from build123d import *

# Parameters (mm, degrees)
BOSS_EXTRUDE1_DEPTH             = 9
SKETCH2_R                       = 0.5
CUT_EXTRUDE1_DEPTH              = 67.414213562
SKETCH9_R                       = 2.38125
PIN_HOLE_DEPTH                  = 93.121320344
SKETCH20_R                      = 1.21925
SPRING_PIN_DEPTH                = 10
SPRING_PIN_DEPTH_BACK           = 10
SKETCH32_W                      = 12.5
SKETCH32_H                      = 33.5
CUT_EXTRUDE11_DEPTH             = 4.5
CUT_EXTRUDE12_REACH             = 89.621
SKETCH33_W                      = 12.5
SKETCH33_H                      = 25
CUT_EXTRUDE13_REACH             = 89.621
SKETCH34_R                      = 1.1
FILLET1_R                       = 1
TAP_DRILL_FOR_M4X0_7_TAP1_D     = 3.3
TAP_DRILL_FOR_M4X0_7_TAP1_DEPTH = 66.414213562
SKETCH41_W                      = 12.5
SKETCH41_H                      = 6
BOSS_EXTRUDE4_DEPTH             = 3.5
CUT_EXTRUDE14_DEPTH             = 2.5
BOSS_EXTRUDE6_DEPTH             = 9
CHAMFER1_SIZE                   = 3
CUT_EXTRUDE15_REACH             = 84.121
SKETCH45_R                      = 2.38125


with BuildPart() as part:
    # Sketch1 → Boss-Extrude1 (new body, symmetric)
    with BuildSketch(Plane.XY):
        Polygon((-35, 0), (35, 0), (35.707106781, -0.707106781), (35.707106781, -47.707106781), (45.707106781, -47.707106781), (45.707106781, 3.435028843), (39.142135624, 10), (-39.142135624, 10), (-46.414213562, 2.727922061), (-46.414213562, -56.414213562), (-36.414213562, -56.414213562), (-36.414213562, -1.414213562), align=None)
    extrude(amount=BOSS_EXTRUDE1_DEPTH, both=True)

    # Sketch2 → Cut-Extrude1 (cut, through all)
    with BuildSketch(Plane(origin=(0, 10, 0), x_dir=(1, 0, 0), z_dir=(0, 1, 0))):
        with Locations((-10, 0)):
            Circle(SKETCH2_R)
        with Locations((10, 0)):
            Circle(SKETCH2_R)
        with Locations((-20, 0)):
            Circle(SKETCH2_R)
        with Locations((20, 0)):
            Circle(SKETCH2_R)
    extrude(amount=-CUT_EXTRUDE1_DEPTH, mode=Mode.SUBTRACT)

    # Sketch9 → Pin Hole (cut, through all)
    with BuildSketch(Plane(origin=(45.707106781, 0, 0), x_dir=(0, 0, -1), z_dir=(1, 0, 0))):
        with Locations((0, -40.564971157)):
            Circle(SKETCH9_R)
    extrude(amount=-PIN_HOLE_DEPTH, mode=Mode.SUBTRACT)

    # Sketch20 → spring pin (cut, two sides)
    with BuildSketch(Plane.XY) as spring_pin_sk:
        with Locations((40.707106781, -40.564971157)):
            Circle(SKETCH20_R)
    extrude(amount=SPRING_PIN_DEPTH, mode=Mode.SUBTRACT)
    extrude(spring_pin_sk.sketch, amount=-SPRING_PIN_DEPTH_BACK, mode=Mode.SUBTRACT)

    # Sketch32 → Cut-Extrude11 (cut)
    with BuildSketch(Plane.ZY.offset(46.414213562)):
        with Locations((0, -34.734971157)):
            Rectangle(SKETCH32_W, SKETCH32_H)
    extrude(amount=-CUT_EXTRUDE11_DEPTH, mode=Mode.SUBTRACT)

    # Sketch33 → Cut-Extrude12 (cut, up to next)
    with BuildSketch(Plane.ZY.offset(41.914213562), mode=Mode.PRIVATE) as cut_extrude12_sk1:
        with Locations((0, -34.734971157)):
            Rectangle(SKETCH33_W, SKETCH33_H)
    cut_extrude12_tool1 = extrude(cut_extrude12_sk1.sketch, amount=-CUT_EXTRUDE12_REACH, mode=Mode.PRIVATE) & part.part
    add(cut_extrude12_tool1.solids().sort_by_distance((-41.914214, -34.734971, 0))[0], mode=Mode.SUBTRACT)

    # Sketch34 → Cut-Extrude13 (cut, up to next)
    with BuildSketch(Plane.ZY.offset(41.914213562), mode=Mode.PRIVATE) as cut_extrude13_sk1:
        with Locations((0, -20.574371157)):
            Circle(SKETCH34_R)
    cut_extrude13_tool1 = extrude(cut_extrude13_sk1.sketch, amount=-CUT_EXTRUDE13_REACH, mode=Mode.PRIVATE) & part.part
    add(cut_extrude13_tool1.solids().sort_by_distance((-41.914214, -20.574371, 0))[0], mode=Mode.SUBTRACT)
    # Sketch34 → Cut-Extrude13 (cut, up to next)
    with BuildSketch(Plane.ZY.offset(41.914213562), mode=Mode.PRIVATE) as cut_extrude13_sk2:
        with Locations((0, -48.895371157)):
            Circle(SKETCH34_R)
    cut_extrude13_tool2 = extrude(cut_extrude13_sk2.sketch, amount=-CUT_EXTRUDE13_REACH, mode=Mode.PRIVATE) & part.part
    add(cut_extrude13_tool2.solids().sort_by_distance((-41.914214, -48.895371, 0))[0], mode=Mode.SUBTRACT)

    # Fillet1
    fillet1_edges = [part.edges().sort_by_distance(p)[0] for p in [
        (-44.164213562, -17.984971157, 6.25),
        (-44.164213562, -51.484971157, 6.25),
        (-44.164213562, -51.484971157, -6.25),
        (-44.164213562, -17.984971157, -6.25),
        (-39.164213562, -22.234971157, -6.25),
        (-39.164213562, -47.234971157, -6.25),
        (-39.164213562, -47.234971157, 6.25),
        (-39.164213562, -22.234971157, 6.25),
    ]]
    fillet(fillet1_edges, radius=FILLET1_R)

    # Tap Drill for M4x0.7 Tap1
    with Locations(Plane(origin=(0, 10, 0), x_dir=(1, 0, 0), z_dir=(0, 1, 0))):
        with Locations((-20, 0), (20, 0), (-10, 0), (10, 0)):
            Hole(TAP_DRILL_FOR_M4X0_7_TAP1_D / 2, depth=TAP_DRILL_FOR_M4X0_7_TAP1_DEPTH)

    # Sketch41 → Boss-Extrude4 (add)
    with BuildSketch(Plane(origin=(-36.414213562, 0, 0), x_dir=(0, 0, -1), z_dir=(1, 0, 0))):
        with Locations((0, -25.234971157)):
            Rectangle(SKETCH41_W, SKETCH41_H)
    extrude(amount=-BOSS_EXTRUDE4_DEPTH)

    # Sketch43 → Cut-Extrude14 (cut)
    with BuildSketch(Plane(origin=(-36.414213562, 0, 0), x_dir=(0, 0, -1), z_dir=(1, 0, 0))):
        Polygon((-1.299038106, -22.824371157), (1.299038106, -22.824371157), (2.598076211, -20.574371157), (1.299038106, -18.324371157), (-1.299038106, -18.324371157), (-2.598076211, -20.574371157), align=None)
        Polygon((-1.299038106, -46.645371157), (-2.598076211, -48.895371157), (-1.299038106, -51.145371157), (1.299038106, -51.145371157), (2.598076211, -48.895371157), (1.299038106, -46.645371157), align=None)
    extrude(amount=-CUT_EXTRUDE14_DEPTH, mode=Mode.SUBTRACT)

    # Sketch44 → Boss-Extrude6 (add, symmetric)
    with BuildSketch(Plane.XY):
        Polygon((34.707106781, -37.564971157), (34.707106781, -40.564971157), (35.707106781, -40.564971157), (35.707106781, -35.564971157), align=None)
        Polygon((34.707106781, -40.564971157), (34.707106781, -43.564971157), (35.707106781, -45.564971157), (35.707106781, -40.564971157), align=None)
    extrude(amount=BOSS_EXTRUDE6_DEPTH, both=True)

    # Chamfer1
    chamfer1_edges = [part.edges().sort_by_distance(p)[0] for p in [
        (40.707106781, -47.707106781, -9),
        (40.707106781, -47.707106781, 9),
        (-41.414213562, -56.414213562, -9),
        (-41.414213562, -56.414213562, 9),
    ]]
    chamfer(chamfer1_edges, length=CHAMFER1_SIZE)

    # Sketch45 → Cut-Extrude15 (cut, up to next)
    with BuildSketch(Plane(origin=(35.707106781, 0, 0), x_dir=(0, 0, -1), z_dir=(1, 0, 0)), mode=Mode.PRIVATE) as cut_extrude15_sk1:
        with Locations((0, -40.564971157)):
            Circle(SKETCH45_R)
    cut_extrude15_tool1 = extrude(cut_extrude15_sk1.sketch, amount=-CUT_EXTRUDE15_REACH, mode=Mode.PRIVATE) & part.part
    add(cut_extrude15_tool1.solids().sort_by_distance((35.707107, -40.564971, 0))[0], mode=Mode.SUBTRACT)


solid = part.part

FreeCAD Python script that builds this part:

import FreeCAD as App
import Part
import Sketcher
from FreeCAD import Vector
Q = App.Units.Quantity


def edges_at(feature, points):
    """Names of the edges that pass closest to the given points."""
    edges = feature.Shape.Edges
    near = lambda p: min(range(len(edges)), key=lambda i: edges[i].distToShape(Part.Vertex(*p))[0])
    return sorted({f"Edge{near(p) + 1}" for p in points})


def add_polygon(sketch, points):
    """Adds a closed chain of lines whose ends are joined by coincident constraints."""
    first, n = sketch.GeometryCount, len(points)
    for a, b in zip(points, points[1:] + points[:1]):
        sketch.addGeometry(Part.LineSegment(App.Vector(*a, 0), App.Vector(*b, 0)), False)
    for i in range(n):
        sketch.addConstraint(Sketcher.Constraint("Coincident", first + i, 2, first + (i + 1) % n, 1))

doc = App.newDocument("Part")
body = doc.addObject("PartDesign::Body", "Body")

sketch1 = doc.addObject("Sketcher::SketchObject", "Sketch")
body.addObject(sketch1)
sketch1.AttachmentSupport = (doc.XY_Plane, [""])
sketch1.MapMode = "FlatFace"
add_polygon(sketch1, [(-35, 0), (35, 0), (35.707107, -0.707107), (35.707107, -47.707107), (45.707107, -47.707107), (45.707107, 3.435029), (39.142136, 10), (-39.142136, 10), (-46.414214, 2.727922), (-46.414214, -56.414214), (-36.414214, -56.414214), (-36.414214, -1.414214)])
sketch1.addConstraint([
    Sketcher.Constraint("Horizontal", 0),
    Sketcher.Constraint("Vertical", 2),
    Sketcher.Constraint("Horizontal", 3),
    Sketcher.Constraint("Vertical", 4),
    Sketcher.Constraint("Horizontal", 6),
    Sketcher.Constraint("Vertical", 8),
    Sketcher.Constraint("Horizontal", 9),
    Sketcher.Constraint("Vertical", 10),
    Sketcher.Constraint("Symmetric", 0, 2, 11, 2, -1, 1),
    Sketcher.Constraint("Parallel", 1, 5),
    Sketcher.Constraint("Perpendicular", 5, 7),
    Sketcher.Constraint("Parallel", 7, 11),
    Sketcher.Constraint("Equal", 3, 9),
    Sketcher.Constraint("DistanceX", 0, 1, 0, 2, 70.0),
    Sketcher.Constraint("DistanceX", 3, 1, 3, 2, 10.0),
    Sketcher.Constraint("DistanceY", 2, 2, 2, 1, 47.0),
    Sketcher.Constraint("DistanceY", 10, 1, 10, 2, 55.0),
    Sketcher.Constraint("Angle", 1, Q("-45 deg")),
    Sketcher.Constraint("Distance", 1, 1.0),
    Sketcher.Constraint("Distance", 11, 2.0),
    Sketcher.Constraint("DistanceY", -1, 1, 5, 2, 10.0),
    Sketcher.Constraint("DistanceX", 6, 2, 6, 1, 78.284271),
    Sketcher.Constraint("Distance", 5, 9.284271),
])
pad1 = doc.addObject("PartDesign::Pad", "Pad")
body.addObject(pad1)
pad1.Profile = sketch1
pad1.Length = 18
pad1.Midplane = True

sketch2 = doc.addObject("Sketcher::SketchObject", "Sketch001")
body.addObject(sketch2)
sketch2.AttachmentSupport = (doc.XZ_Plane, [""])
sketch2.MapMode = "FlatFace"
sketch2.AttachmentOffset = App.Placement(Vector(0, 0, -10), App.Rotation())
sketch2.addGeometry([
    Part.Circle(Vector(-10, 0, 0), Vector(0, 0, 1), 0.5),
    Part.Circle(Vector(10, 0, 0), Vector(0, 0, 1), 0.5),
    Part.Circle(Vector(-20, 0, 0), Vector(0, 0, 1), 0.5),
    Part.Circle(Vector(20, 0, 0), Vector(0, 0, 1), 0.5),
], False)
sketch2.addConstraint([
    Sketcher.Constraint("Equal", 0, 1),
    Sketcher.Constraint("Equal", 1, 2),
    Sketcher.Constraint("Equal", 2, 3),
    Sketcher.Constraint("Symmetric", 0, 3, 1, 3, -1, 1),
    Sketcher.Constraint("Symmetric", 2, 3, 3, 3, -1, 1),
    Sketcher.Constraint("PointOnObject", 0, 3, -1),
    Sketcher.Constraint("PointOnObject", 2, 3, -1),
    Sketcher.Constraint("Diameter", 0, 1.0),
    Sketcher.Constraint("DistanceX", 0, 3, -1, 1, 10.0),
    Sketcher.Constraint("DistanceX", 2, 3, -1, 1, 20.0),
])
pocket1 = doc.addObject("PartDesign::Pocket", "Pocket")
body.addObject(pocket1)
pocket1.Profile = sketch2
pocket1.Type = "ThroughAll"
pocket1.Reversed = True

sketch3 = doc.addObject("Sketcher::SketchObject", "Sketch002")
body.addObject(sketch3)
sketch3.AttachmentSupport = (doc.YZ_Plane, [""])
sketch3.MapMode = "FlatFace"
sketch3.AttachmentOffset = App.Placement(Vector(0, 0, 45.707107), App.Rotation())
sketch3.addGeometry(Part.Circle(Vector(-40.564971, 0, 0), Vector(0, 0, 1), 2.38125), False)
sketch3.addConstraint([
    Sketcher.Constraint("PointOnObject", 0, 3, -1),
    Sketcher.Constraint("Diameter", 0, 4.7625),
    Sketcher.Constraint("DistanceX", 0, 3, -1, 1, 40.564971),
])
pocket2 = doc.addObject("PartDesign::Pocket", "Pocket001")
body.addObject(pocket2)
pocket2.Profile = sketch3
pocket2.Type = "ThroughAll"

sketch4 = doc.addObject("Sketcher::SketchObject", "Sketch003")
body.addObject(sketch4)
sketch4.AttachmentSupport = (doc.XY_Plane, [""])
sketch4.MapMode = "FlatFace"
sketch4.addGeometry(Part.Circle(Vector(40.707107, -40.564971, 0), Vector(0, 0, 1), 1.21925), False)
sketch4.addConstraint([
    Sketcher.Constraint("Diameter", 0, 2.4385),
    Sketcher.Constraint("DistanceY", 0, 3, -1, 1, 40.564971),
    Sketcher.Constraint("DistanceX", -1, 1, 0, 3, 40.707107),
])
pocket3 = doc.addObject("PartDesign::Pocket", "Pocket002")
body.addObject(pocket3)
pocket3.Profile = sketch4
pocket3.Type = "ThroughAll"
pocket3.Midplane = True

sketch5 = doc.addObject("Sketcher::SketchObject", "Sketch004")
body.addObject(sketch5)
sketch5.AttachmentSupport = (doc.YZ_Plane, [""])
sketch5.MapMode = "FlatFace"
sketch5.AttachmentOffset = App.Placement(Vector(0, 0, -46.414214), App.Rotation())
add_polygon(sketch5, [(-17.984971, -6.25), (-51.484971, -6.25), (-51.484971, 6.25), (-17.984971, 6.25)])
sketch5.addConstraint([
    Sketcher.Constraint("Horizontal", 0),
    Sketcher.Constraint("Vertical", 1),
    Sketcher.Constraint("Horizontal", 2),
    Sketcher.Constraint("Vertical", 3),
    Sketcher.Constraint("DistanceX", 0, 2, 0, 1, 33.5),
    Sketcher.Constraint("DistanceY", 1, 1, 1, 2, 12.5),
    Sketcher.Constraint("DistanceY", 0, 2, -1, 1, 6.25),
    Sketcher.Constraint("DistanceX", 0, 2, -1, 1, 51.484971),
])
pocket4 = doc.addObject("PartDesign::Pocket", "Pocket003")
body.addObject(pocket4)
pocket4.Profile = sketch5
pocket4.Length = 4.5
pocket4.Reversed = True

sketch6 = doc.addObject("Sketcher::SketchObject", "Sketch005")
body.addObject(sketch6)
sketch6.AttachmentSupport = (doc.YZ_Plane, [""])
sketch6.MapMode = "FlatFace"
sketch6.AttachmentOffset = App.Placement(Vector(0, 0, -41.914214), App.Rotation())
add_polygon(sketch6, [(-22.234971, -6.25), (-47.234971, -6.25), (-47.234971, 6.25), (-22.234971, 6.25)])
sketch6.addConstraint([
    Sketcher.Constraint("Horizontal", 0),
    Sketcher.Constraint("Vertical", 1),
    Sketcher.Constraint("Horizontal", 2),
    Sketcher.Constraint("Vertical", 3),
    Sketcher.Constraint("DistanceX", 0, 2, 0, 1, 25.0),
    Sketcher.Constraint("DistanceY", 1, 1, 1, 2, 12.5),
    Sketcher.Constraint("DistanceY", 0, 2, -1, 1, 6.25),
    Sketcher.Constraint("DistanceX", 0, 2, -1, 1, 47.234971),
])
pocket5 = doc.addObject("PartDesign::Pocket", "Pocket004")
body.addObject(pocket5)
pocket5.Profile = sketch6
pocket5.Type = "UpToFirst"
pocket5.Reversed = True

sketch7 = doc.addObject("Sketcher::SketchObject", "Sketch006")
body.addObject(sketch7)
sketch7.AttachmentSupport = (doc.YZ_Plane, [""])
sketch7.MapMode = "FlatFace"
sketch7.AttachmentOffset = App.Placement(Vector(0, 0, -41.914214), App.Rotation())
sketch7.addGeometry(Part.Circle(Vector(-20.574371, 0, 0), Vector(0, 0, 1), 1.1), False)
sketch7.addConstraint([
    Sketcher.Constraint("PointOnObject", 0, 3, -1),
    Sketcher.Constraint("Diameter", 0, 2.2),
    Sketcher.Constraint("DistanceX", 0, 3, -1, 1, 20.574371),
])
pocket6 = doc.addObject("PartDesign::Pocket", "Pocket005")
body.addObject(pocket6)
pocket6.Profile = sketch7
pocket6.Type = "UpToFirst"
pocket6.Reversed = True

sketch8 = doc.addObject("Sketcher::SketchObject", "Sketch007")
body.addObject(sketch8)
sketch8.AttachmentSupport = (doc.YZ_Plane, [""])
sketch8.MapMode = "FlatFace"
sketch8.AttachmentOffset = App.Placement(Vector(0, 0, -41.914214), App.Rotation())
sketch8.addGeometry(Part.Circle(Vector(-48.895371, 0, 0), Vector(0, 0, 1), 1.1), False)
sketch8.addConstraint([
    Sketcher.Constraint("PointOnObject", 0, 3, -1),
    Sketcher.Constraint("Diameter", 0, 2.2),
    Sketcher.Constraint("DistanceX", 0, 3, -1, 1, 48.895371),
])
pocket7 = doc.addObject("PartDesign::Pocket", "Pocket006")
body.addObject(pocket7)
pocket7.Profile = sketch8
pocket7.Type = "UpToFirst"
pocket7.Reversed = True
doc.recompute()

fillet = doc.addObject("PartDesign::Fillet", "Fillet")
body.addObject(fillet)
fillet.Base = (pocket7, edges_at(pocket7, [
    (-44.164, -17.985, 6.25),
    (-44.164, -51.485, 6.25),
    (-44.164, -51.485, -6.25),
    (-44.164, -17.985, -6.25),
    (-39.164, -22.235, -6.25),
    (-39.164, -47.235, -6.25),
    (-39.164, -47.235, 6.25),
    (-39.164, -22.235, 6.25),
]))
fillet.Radius = 1

sketch9 = doc.addObject("Sketcher::SketchObject", "Sketch008")
body.addObject(sketch9)
sketch9.AttachmentSupport = (doc.XZ_Plane, [""])
sketch9.MapMode = "FlatFace"
sketch9.AttachmentOffset = App.Placement(Vector(0, 0, -10), App.Rotation())
sketch9.addGeometry([
    Part.Circle(Vector(-20, 0, 0), Vector(0, 0, 1), 1.65),
    Part.Circle(Vector(20, 0, 0), Vector(0, 0, 1), 1.65),
    Part.Circle(Vector(-10, 0, 0), Vector(0, 0, 1), 1.65),
    Part.Circle(Vector(10, 0, 0), Vector(0, 0, 1), 1.65),
], False)
sketch9.addConstraint([
    Sketcher.Constraint("Equal", 0, 1),
    Sketcher.Constraint("Equal", 1, 2),
    Sketcher.Constraint("Equal", 2, 3),
    Sketcher.Constraint("Symmetric", 0, 3, 1, 3, -1, 1),
    Sketcher.Constraint("Symmetric", 2, 3, 3, 3, -1, 1),
    Sketcher.Constraint("PointOnObject", 0, 3, -1),
    Sketcher.Constraint("PointOnObject", 2, 3, -1),
    Sketcher.Constraint("Diameter", 0, 3.3),
    Sketcher.Constraint("DistanceX", 0, 3, -1, 1, 20.0),
    Sketcher.Constraint("DistanceX", 2, 3, -1, 1, 10.0),
])
doc.recompute()
hole = doc.addObject("PartDesign::Hole", "Hole")
body.addObject(hole)
hole.Profile = sketch9
hole.ThreadType = "None"
hole.Diameter = 3.3
hole.DepthType = "Dimension"
hole.Depth = 66.414214
hole.DrillPoint = "Flat"
hole.Reversed = True

sketch10 = doc.addObject("Sketcher::SketchObject", "Sketch009")
body.addObject(sketch10)
sketch10.AttachmentSupport = (doc.YZ_Plane, [""])
sketch10.MapMode = "FlatFace"
sketch10.AttachmentOffset = App.Placement(Vector(0, 0, -36.414214), App.Rotation())
add_polygon(sketch10, [(-22.234971, 6.25), (-28.234971, 6.25), (-28.234971, -6.25), (-22.234971, -6.25)])
sketch10.addConstraint([
    Sketcher.Constraint("Horizontal", 0),
    Sketcher.Constraint("Vertical", 1),
    Sketcher.Constraint("Horizontal", 2),
    Sketcher.Constraint("Vertical", 3),
    Sketcher.Constraint("DistanceX", 0, 2, 0, 1, 6.0),
    Sketcher.Constraint("DistanceY", 1, 2, 1, 1, 12.5),
    Sketcher.Constraint("DistanceY", -1, 1, 0, 2, 6.25),
    Sketcher.Constraint("DistanceX", 0, 2, -1, 1, 28.234971),
])
pad2 = doc.addObject("PartDesign::Pad", "Pad001")
body.addObject(pad2)
pad2.Profile = sketch10
pad2.Length = 3.5
pad2.Reversed = True

sketch11 = doc.addObject("Sketcher::SketchObject", "Sketch010")
body.addObject(sketch11)
sketch11.AttachmentSupport = (doc.YZ_Plane, [""])
sketch11.MapMode = "FlatFace"
sketch11.AttachmentOffset = App.Placement(Vector(0, 0, -36.414214), App.Rotation())
add_polygon(sketch11, [(-22.824371, 1.299038), (-22.824371, -1.299038), (-20.574371, -2.598076), (-18.324371, -1.299038), (-18.324371, 1.299038), (-20.574371, 2.598076)])
add_polygon(sketch11, [(-46.645371, 1.299038), (-48.895371, 2.598076), (-51.145371, 1.299038), (-51.145371, -1.299038), (-48.895371, -2.598076), (-46.645371, -1.299038)])
sketch11.addConstraint([
    Sketcher.Constraint("Vertical", 0),
    Sketcher.Constraint("Vertical", 3),
    Sketcher.Constraint("Vertical", 8),
    Sketcher.Constraint("Vertical", 11),
    Sketcher.Constraint("Symmetric", 1, 2, 4, 2, -1),
    Sketcher.Constraint("Symmetric", 6, 2, 9, 2, -1),
    Sketcher.Constraint("Parallel", 1, 4),
    Sketcher.Constraint("Parallel", 2, 5),
    Sketcher.Constraint("Parallel", 4, 6),
    Sketcher.Constraint("Parallel", 5, 7),
    Sketcher.Constraint("Parallel", 6, 9),
    Sketcher.Constraint("Parallel", 7, 10),
    Sketcher.Constraint("Horizontal", 0, 2, 2, 2),
    Sketcher.Constraint("Horizontal", 3, 2, 5, 2),
    Sketcher.Constraint("Horizontal", 4, 2, 6, 2),
    Sketcher.Constraint("Horizontal", 5, 2, 7, 2),
    Sketcher.Constraint("Horizontal", 8, 2, 10, 2),
    Sketcher.Constraint("Angle", 1, Q("-30 deg")),
    Sketcher.Constraint("DistanceX", 0, 2, 2, 2, 4.5),
    Sketcher.Constraint("DistanceX", 6, 2, 5, 2, 26.071),
    Sketcher.Constraint("DistanceY", 0, 2, 0, 1, 2.598076),
    Sketcher.Constraint("DistanceX", 0, 2, -1, 1, 22.824371),
])
pocket8 = doc.addObject("PartDesign::Pocket", "Pocket007")
body.addObject(pocket8)
pocket8.Profile = sketch11
pocket8.Length = 2.5

sketch12 = doc.addObject("Sketcher::SketchObject", "Sketch011")
body.addObject(sketch12)
sketch12.AttachmentSupport = (doc.XY_Plane, [""])
sketch12.MapMode = "FlatFace"
add_polygon(sketch12, [(34.707107, -37.564971), (34.707107, -43.564971), (35.707107, -45.564971), (35.707107, -35.564971)])
sketch12.addConstraint([
    Sketcher.Constraint("Vertical", 0),
    Sketcher.Constraint("Vertical", 2),
    Sketcher.Constraint("Equal", 1, 3),
    Sketcher.Constraint("DistanceY", 0, 2, 0, 1, 6.0),
    Sketcher.Constraint("DistanceY", 2, 1, 2, 2, 10.0),
    Sketcher.Constraint("DistanceX", 0, 2, 1, 2, 1.0),
    Sketcher.Constraint("DistanceY", 0, 2, -1, 1, 43.564971),
    Sketcher.Constraint("DistanceX", -1, 1, 0, 2, 34.707107),
])
pad3 = doc.addObject("PartDesign::Pad", "Pad002")
body.addObject(pad3)
pad3.Profile = sketch12
pad3.Length = 18
pad3.Midplane = True
doc.recompute()

chamfer = doc.addObject("PartDesign::Chamfer", "Chamfer")
body.addObject(chamfer)
chamfer.Base = (pad3, edges_at(pad3, [
    (40.707, -47.707, -9),
    (40.707, -47.707, 9),
    (-41.414, -56.414, -9),
    (-41.414, -56.414, 9),
]))
chamfer.Size = 3

sketch13 = doc.addObject("Sketcher::SketchObject", "Sketch012")
body.addObject(sketch13)
sketch13.AttachmentSupport = (doc.YZ_Plane, [""])
sketch13.MapMode = "FlatFace"
sketch13.AttachmentOffset = App.Placement(Vector(0, 0, 35.707107), App.Rotation())
sketch13.addGeometry(Part.Circle(Vector(-40.564971, 0, 0), Vector(0, 0, 1), 2.38125), False)
sketch13.addConstraint([
    Sketcher.Constraint("PointOnObject", 0, 3, -1),
    Sketcher.Constraint("Diameter", 0, 4.7625),
    Sketcher.Constraint("DistanceX", 0, 3, -1, 1, 40.564971),
])
pocket9 = doc.addObject("PartDesign::Pocket", "Pocket008")
body.addObject(pocket9)
pocket9.Profile = sketch13
pocket9.Type = "UpToFirst"

doc.recompute()
